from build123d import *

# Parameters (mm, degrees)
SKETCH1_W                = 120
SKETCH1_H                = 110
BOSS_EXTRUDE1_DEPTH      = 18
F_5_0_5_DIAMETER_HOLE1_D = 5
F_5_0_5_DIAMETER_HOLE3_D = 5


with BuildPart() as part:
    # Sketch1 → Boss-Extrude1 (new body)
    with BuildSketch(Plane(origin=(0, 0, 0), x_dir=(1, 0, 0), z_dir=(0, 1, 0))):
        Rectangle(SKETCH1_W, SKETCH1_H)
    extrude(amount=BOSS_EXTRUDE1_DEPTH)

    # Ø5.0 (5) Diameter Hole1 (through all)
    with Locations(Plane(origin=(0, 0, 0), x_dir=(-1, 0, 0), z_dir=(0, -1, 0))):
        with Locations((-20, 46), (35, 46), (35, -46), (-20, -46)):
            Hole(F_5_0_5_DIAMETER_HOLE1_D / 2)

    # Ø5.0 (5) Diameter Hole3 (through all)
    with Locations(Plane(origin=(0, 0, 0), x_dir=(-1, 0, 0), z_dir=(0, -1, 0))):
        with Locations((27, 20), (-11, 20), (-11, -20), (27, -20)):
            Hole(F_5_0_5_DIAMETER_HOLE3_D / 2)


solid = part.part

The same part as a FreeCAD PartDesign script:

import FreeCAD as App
import Part
import Sketcher
from FreeCAD import Vector

doc = App.newDocument("Part")
body = doc.addObject("PartDesign::Body", "Body")

# Sketch on XZ plane
sketch1 = body.newObject("Sketcher::SketchObject", "Sketch")
sketch1.AttachmentSupport = (doc.getObject("XZ_Plane"), [""])
sketch1.MapMode = "FlatFace"
sketch1.addGeometry([
    Part.LineSegment(Vector(-60, -55, 0), Vector(-60, 55, 0)),
    Part.LineSegment(Vector(-60, 55, 0), Vector(60, 55, 0)),
    Part.LineSegment(Vector(60, 55, 0), Vector(60, -55, 0)),
    Part.LineSegment(Vector(60, -55, 0), Vector(-60, -55, 0)),
], False)
sketch1.addConstraint([
    Sketcher.Constraint("Coincident", 0, 2, 1, 1),
    Sketcher.Constraint("Coincident", 1, 2, 2, 1),
    Sketcher.Constraint("Coincident", 2, 2, 3, 1),
    Sketcher.Constraint("Coincident", 3, 2, 0, 1),
    Sketcher.Constraint("Vertical", 0),
    Sketcher.Constraint("Horizontal", 1),
    Sketcher.Constraint("Vertical", 2),
    Sketcher.Constraint("Horizontal", 3),
    Sketcher.Constraint("Symmetric", 0, 2, 2, 2, -1, 1),
    Sketcher.Constraint("DistanceX", 1, 1, 1, 2, 120.0),
    Sketcher.Constraint("DistanceY", 0, 1, 0, 2, 110.0),
])
pad1 = body.newObject("PartDesign::Pad", "Pad")
pad1.Profile = sketch1
pad1.Length = 18
pad1.Reversed = True

# Sketch on XZ plane
sketch2 = body.newObject("Sketcher::SketchObject", "Sketch001")
sketch2.AttachmentSupport = (doc.getObject("XZ_Plane"), [""])
sketch2.MapMode = "FlatFace"
sketch2.addGeometry([
    Part.Circle(Vector(20, -46, 0), Vector(0, 0, 1), 2.5),
    Part.Circle(Vector(-35, -46, 0), Vector(0, 0, 1), 2.5),
    Part.Circle(Vector(-35, 46, 0), Vector(0, 0, 1), 2.5),
    Part.Circle(Vector(20, 46, 0), Vector(0, 0, 1), 2.5),
], False)
sketch2.addConstraint([
    Sketcher.Constraint("Equal", 0, 1),
    Sketcher.Constraint("Equal", 1, 2),
    Sketcher.Constraint("Equal", 2, 3),
    Sketcher.Constraint("Symmetric", 1, 3, 2, 3, -1),
    Sketcher.Constraint("Symmetric", 0, 3, 3, 3, -1),
    Sketcher.Constraint("Horizontal", 0, 3, 1, 3),
    Sketcher.Constraint("Diameter", 0, 5.0),
    Sketcher.Constraint("DistanceX", -1, 1, 0, 3, 20.0),
    Sketcher.Constraint("DistanceY", 0, 3, -1, 1, 46.0),
    Sketcher.Constraint("DistanceX", 1, 3, -1, 1, 35.0),
])
doc.recompute()
hole = body.newObject("PartDesign::Hole", "Hole")
hole.Profile = sketch2
hole.ThreadType = "None"
hole.Diameter = 5
hole.DepthType = "ThroughAll"

# Sketch on XZ plane
sketch3 = body.newObject("Sketcher::SketchObject", "Sketch002")
sketch3.AttachmentSupport = (doc.getObject("XZ_Plane"), [""])
sketch3.MapMode = "FlatFace"
sketch3.addGeometry([
    Part.Circle(Vector(-27, -20, 0), Vector(0, 0, 1), 2.5),
    Part.Circle(Vector(11, -20, 0), Vector(0, 0, 1), 2.5),
    Part.Circle(Vector(11, 20, 0), Vector(0, 0, 1), 2.5),
    Part.Circle(Vector(-27, 20, 0), Vector(0, 0, 1), 2.5),
], False)
sketch3.addConstraint([
    Sketcher.Constraint("Equal", 0, 1),
    Sketcher.Constraint("Equal", 1, 2),
    Sketcher.Constraint("Equal", 2, 3),
    Sketcher.Constraint("Symmetric", 1, 3, 2, 3, -1),
    Sketcher.Constraint("Symmetric", 0, 3, 3, 3, -1),
    Sketcher.Constraint("Horizontal", 0, 3, 1, 3),
    Sketcher.Constraint("Diameter", 0, 5.0),
    Sketcher.Constraint("DistanceX", 0, 3, -1, 1, 27.0),
    Sketcher.Constraint("DistanceY", 0, 3, -1, 1, 20.0),
    Sketcher.Constraint("DistanceX", -1, 1, 1, 3, 11.0),
])
doc.recompute()
hole2 = body.newObject("PartDesign::Hole", "Hole001")
hole2.Profile = sketch3
hole2.ThreadType = "None"
hole2.Diameter = 5
hole2.DepthType = "ThroughAll"

doc.recompute()
